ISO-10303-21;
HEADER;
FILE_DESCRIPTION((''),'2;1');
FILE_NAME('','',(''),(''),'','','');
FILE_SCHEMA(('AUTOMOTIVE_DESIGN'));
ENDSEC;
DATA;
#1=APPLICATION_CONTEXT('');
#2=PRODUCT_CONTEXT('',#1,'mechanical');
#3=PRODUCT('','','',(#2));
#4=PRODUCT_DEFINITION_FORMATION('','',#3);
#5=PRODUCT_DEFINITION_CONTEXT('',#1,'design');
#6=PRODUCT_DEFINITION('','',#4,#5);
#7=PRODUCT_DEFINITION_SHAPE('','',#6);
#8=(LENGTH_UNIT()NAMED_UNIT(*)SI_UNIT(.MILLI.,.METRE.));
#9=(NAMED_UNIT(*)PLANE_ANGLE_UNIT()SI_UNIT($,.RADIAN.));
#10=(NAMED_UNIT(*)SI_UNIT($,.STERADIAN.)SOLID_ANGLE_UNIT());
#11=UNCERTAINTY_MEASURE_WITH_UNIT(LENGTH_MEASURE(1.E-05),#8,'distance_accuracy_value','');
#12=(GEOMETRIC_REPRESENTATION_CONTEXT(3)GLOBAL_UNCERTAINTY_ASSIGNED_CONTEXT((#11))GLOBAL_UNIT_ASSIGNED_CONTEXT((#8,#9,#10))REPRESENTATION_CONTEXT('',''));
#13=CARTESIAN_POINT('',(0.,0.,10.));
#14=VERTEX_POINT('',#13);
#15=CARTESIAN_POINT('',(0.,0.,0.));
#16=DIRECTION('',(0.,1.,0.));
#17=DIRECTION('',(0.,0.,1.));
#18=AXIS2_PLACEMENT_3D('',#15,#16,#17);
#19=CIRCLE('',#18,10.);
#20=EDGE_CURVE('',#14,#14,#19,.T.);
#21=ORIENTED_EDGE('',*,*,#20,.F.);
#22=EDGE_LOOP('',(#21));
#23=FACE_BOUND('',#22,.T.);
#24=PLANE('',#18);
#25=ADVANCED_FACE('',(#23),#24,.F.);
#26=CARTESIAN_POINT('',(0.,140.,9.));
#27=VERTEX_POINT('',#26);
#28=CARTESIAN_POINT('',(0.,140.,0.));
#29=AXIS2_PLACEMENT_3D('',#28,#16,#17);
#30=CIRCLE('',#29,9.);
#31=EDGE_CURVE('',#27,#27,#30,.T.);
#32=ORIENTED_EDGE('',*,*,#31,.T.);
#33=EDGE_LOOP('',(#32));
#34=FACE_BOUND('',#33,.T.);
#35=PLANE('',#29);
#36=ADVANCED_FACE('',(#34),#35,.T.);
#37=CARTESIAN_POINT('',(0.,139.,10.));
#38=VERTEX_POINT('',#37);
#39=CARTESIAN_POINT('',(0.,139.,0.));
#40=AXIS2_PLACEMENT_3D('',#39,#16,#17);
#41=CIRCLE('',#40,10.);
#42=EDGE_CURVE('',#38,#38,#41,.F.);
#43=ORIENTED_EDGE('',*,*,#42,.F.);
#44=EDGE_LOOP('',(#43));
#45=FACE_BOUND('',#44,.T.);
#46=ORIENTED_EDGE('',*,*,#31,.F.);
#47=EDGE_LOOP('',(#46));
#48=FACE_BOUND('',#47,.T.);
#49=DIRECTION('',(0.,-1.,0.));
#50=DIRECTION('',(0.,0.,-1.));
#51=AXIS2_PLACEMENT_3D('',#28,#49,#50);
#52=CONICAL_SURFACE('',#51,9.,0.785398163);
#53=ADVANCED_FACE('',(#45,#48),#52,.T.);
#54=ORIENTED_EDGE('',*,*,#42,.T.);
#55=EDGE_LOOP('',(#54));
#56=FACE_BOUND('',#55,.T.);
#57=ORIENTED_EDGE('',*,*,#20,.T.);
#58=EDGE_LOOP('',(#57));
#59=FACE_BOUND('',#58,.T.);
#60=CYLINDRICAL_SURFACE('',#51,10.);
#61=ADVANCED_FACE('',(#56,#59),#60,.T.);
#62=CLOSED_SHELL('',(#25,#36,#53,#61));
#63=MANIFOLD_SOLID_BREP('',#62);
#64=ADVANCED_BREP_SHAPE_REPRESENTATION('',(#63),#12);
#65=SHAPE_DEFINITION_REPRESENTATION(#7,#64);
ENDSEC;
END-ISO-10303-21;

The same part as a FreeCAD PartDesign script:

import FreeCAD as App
import Part
import Sketcher
Q = App.Units.Quantity


def edges_at(feature, points):
    """Names of the edges that pass closest to the given points."""
    edges = feature.Shape.Edges
    near = lambda p: min(range(len(edges)), key=lambda i: edges[i].distToShape(Part.Vertex(*p))[0])
    return sorted({f"Edge{near(p) + 1}" for p in points})

doc = App.newDocument("Part")
params = doc.addObject("Spreadsheet::Sheet", "Params")
for row, (alias, value) in enumerate([
    ("sketch1_diameter", "20 mm"),
    ("pad1_length", "140 mm"),
    ("chamfer_size", "1 mm"),
], start=1):
    params.set(f"A{row}", alias)
    params.set(f"B{row}", "=" + value)
    params.setAlias(f"B{row}", alias)

body = doc.addObject("PartDesign::Body", "Body")

# Sketch on XZ plane
sketch1 = body.newObject("Sketcher::SketchObject", "Sketch")
sketch1.AttachmentSupport = (doc.getObject("XZ_Plane"), [""])
sketch1.MapMode = "FlatFace"
sketch1.addGeometry(Part.Circle(App.Vector(0, 0, 0), App.Vector(0, 0, 1), 10), False)
sketch1.addConstraint(Sketcher.Constraint("Coincident", 0, 3, -1, 1))
sketch1.addConstraint(Sketcher.Constraint("Diameter", 0, Q("20 mm")))
sketch1.setExpression("Constraints[1]", "Params.sketch1_diameter")
pad1 = body.newObject("PartDesign::Pad", "Pad")
pad1.Profile = sketch1
pad1.setExpression("Length", "Params.pad1_length")
pad1.Reversed = True
doc.recompute()

chamfer = body.newObject("PartDesign::Chamfer", "Chamfer")
chamfer.Base = (pad1, edges_at(pad1, [(-10, 140, 0)]))
chamfer.setExpression("Size", "Params.chamfer_size")

doc.recompute()
